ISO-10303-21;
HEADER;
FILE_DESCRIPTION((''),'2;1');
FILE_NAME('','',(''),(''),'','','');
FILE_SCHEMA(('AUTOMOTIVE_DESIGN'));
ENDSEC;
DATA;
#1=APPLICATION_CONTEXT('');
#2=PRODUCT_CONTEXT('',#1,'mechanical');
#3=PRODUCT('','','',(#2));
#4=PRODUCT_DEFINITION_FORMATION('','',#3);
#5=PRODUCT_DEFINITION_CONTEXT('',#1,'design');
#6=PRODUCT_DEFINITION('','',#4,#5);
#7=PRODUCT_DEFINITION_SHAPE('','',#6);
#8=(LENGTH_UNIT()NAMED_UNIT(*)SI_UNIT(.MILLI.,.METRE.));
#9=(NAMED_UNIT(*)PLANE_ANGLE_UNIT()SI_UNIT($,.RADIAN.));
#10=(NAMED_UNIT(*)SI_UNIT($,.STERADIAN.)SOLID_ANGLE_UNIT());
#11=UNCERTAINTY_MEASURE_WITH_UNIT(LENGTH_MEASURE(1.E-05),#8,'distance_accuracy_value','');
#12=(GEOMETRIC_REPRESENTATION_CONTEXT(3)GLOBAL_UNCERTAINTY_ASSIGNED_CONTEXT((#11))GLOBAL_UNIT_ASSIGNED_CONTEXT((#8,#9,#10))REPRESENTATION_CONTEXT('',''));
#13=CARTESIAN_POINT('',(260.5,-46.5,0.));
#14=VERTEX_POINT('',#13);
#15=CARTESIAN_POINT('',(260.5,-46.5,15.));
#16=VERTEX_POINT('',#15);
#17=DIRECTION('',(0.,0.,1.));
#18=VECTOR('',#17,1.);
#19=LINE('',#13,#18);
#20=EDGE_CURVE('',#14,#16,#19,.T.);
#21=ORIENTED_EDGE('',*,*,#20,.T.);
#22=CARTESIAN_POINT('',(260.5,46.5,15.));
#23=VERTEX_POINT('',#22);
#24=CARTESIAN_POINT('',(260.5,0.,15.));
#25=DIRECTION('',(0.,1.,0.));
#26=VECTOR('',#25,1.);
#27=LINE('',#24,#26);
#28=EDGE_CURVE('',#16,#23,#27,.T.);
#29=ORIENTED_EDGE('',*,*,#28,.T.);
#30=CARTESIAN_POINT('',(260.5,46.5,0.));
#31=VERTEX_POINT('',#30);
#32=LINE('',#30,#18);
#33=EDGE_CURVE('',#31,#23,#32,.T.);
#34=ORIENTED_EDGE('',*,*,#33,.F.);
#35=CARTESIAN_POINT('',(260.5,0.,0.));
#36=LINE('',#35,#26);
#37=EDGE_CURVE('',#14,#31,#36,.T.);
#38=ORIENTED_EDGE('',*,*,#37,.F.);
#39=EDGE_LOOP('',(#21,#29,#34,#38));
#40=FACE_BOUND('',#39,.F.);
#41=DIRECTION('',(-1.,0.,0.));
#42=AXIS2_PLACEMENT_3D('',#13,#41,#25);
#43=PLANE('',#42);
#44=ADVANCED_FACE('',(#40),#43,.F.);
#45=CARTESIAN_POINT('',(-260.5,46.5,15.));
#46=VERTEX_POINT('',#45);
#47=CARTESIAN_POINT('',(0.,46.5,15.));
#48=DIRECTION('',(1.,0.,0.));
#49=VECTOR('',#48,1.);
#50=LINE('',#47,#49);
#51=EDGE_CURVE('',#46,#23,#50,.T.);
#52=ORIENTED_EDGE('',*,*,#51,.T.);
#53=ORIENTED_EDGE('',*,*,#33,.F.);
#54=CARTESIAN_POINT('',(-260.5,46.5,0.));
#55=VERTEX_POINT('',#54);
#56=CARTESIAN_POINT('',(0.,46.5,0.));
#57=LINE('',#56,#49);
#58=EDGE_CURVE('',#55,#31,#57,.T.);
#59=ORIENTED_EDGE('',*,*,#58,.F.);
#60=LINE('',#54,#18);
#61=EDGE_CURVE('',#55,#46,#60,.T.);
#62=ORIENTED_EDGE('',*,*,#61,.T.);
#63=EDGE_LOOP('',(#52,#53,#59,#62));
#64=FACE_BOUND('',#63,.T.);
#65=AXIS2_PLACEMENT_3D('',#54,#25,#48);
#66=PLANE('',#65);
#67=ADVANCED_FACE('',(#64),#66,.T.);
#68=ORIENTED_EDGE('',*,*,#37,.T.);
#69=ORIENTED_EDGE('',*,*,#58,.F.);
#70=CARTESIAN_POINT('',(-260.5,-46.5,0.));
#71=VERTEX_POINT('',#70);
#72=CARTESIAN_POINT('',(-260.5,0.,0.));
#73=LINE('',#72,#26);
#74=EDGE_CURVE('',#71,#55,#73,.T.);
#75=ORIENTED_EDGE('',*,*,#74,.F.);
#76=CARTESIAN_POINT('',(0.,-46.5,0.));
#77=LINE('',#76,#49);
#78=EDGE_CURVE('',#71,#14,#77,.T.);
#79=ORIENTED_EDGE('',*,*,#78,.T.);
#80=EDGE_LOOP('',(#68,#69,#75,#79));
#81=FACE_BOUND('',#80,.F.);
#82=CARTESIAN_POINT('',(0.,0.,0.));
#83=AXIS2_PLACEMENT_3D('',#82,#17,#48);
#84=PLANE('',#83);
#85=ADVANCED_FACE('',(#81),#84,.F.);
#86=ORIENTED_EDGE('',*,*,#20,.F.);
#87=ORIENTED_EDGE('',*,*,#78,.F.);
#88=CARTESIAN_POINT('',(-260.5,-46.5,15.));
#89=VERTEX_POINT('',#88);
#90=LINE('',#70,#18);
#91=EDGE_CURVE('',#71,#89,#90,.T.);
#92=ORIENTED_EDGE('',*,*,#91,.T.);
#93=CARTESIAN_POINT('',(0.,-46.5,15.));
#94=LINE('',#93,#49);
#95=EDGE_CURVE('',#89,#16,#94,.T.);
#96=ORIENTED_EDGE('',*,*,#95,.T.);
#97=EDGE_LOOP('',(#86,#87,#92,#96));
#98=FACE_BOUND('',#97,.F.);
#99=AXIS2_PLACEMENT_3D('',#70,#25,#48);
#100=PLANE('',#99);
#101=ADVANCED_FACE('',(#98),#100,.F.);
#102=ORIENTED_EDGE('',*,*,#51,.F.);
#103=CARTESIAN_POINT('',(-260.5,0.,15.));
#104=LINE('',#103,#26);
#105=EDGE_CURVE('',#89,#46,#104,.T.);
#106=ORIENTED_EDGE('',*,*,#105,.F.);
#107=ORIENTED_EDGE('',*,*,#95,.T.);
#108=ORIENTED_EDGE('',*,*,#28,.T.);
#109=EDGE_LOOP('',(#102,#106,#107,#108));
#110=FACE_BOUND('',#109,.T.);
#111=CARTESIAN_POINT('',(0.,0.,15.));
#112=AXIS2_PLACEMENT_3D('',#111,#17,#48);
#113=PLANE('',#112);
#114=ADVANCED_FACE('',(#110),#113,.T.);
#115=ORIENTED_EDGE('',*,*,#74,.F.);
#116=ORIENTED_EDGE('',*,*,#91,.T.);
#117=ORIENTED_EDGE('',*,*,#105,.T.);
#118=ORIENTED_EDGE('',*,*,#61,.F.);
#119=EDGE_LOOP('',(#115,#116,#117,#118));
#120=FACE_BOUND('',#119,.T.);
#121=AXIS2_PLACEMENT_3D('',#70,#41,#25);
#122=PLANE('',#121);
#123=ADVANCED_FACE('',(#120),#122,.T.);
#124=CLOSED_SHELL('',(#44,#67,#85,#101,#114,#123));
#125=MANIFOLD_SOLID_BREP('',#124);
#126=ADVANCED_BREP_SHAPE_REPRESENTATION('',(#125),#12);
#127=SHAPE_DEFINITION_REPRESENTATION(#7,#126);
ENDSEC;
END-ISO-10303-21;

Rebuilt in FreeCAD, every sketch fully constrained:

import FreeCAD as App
import Part
import Sketcher
from FreeCAD import Vector


def add_polygon(sketch, points):
    """Adds a closed chain of lines whose ends are joined by coincident constraints."""
    first, n = sketch.GeometryCount, len(points)
    for a, b in zip(points, points[1:] + points[:1]):
        sketch.addGeometry(Part.LineSegment(App.Vector(*a, 0), App.Vector(*b, 0)), False)
    for i in range(n):
        sketch.addConstraint(Sketcher.Constraint("Coincident", first + i, 2, first + (i + 1) % n, 1))

doc = App.newDocument("Part")
body = doc.addObject("PartDesign::Body", "Body")

sketch1 = body.newObject("Sketcher::SketchObject", "Sketch")
sketch1.AttachmentSupport = (doc.getObject("XY_Plane"), [""])
sketch1.MapMode = "FlatFace"
add_polygon(sketch1, [(-260, 46), (-260, -46), (260, -46), (260, 46)])
sketch1.addConstraint(Sketcher.Constraint("Vertical", 0))
sketch1.addConstraint(Sketcher.Constraint("Horizontal", 1))
sketch1.addConstraint(Sketcher.Constraint("Vertical", 2))
sketch1.addConstraint(Sketcher.Constraint("Horizontal", 3))
sketch1.addConstraint(Sketcher.Constraint("Symmetric", 0, 2, 2, 2, -1, 1))
sketch1.addConstraint(Sketcher.Constraint("DistanceX", 1, 1, 1, 2, 521.0))
sketch1.addConstraint(Sketcher.Constraint("DistanceY", 0, 2, 0, 1, 93.0))
pad1 = body.newObject("PartDesign::Pad", "Pad")
pad1.Profile = sketch1
pad1.Length = 15

doc.recompute()
